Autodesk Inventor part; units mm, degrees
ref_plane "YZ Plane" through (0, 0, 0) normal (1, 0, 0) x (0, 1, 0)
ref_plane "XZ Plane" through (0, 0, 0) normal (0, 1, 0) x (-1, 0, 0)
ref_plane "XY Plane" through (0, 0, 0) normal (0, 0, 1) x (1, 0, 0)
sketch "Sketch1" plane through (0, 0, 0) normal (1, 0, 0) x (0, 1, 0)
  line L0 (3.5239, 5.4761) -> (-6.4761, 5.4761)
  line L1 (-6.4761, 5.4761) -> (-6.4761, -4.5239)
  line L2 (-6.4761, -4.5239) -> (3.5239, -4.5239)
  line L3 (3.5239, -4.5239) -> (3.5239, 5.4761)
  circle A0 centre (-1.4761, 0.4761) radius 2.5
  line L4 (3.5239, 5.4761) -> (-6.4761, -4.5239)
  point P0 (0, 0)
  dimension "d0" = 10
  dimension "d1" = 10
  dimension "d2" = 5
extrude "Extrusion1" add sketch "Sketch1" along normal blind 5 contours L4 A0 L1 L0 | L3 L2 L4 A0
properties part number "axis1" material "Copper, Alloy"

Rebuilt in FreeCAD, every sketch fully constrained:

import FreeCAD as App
import Part
import Sketcher

V = App.Vector
Q = App.Units.Quantity

doc = App.newDocument("Part")
body = doc.addObject("PartDesign::Body", "Body")

sketch1 = doc.addObject("Sketcher::SketchObject", "Sketch")
body.addObject(sketch1)
sketch1.AttachmentSupport = (doc.YZ_Plane, [""])
sketch1.MapMode = "FlatFace"
sketch1.addGeometry([
    Part.LineSegment(V(-6.5, 5.5, 0), V(-6.5, -4.5, 0)),
    Part.LineSegment(V(-6.5, -4.5, 0), V(3.5, -4.5, 0)),
    Part.LineSegment(V(3.5, -4.5, 0), V(3.5, 5.5, 0)),
    Part.LineSegment(V(3.5, 5.5, 0), V(-6.5, 5.5, 0)),
    Part.Circle(V(-1.5, 0.5, 0), V(0, 0, 1), 2.5),
], False)
sketch1.addConstraint([
    Sketcher.Constraint("Coincident", 0, 2, 1, 1),
    Sketcher.Constraint("Coincident", 1, 2, 2, 1),
    Sketcher.Constraint("Coincident", 2, 2, 3, 1),
    Sketcher.Constraint("Coincident", 3, 2, 0, 1),
    Sketcher.Constraint("Vertical", 0),
    Sketcher.Constraint("Horizontal", 1),
    Sketcher.Constraint("Vertical", 2),
    Sketcher.Constraint("Horizontal", 3),
    Sketcher.Constraint("Equal", 3, 0),
    Sketcher.Constraint("Diameter", 4, Q("5 mm")),
    Sketcher.Constraint("DistanceX", 1, 1, 1, 2, Q("10 mm")),
    Sketcher.Constraint("DistanceX", 0, 2, 4, 3, Q("5 mm")),
    Sketcher.Constraint("DistanceY", 0, 2, 4, 3, Q("5 mm")),
    Sketcher.Constraint("DistanceX", 4, 3, -1, 1, Q("1.476 mm")),
    Sketcher.Constraint("DistanceY", -1, 1, 4, 3, Q("0.476 mm")),
])
pad1 = doc.addObject("PartDesign::Pad", "Pad")
body.addObject(pad1)
pad1.Profile = sketch1
pad1.Length = 5

doc.recompute()
